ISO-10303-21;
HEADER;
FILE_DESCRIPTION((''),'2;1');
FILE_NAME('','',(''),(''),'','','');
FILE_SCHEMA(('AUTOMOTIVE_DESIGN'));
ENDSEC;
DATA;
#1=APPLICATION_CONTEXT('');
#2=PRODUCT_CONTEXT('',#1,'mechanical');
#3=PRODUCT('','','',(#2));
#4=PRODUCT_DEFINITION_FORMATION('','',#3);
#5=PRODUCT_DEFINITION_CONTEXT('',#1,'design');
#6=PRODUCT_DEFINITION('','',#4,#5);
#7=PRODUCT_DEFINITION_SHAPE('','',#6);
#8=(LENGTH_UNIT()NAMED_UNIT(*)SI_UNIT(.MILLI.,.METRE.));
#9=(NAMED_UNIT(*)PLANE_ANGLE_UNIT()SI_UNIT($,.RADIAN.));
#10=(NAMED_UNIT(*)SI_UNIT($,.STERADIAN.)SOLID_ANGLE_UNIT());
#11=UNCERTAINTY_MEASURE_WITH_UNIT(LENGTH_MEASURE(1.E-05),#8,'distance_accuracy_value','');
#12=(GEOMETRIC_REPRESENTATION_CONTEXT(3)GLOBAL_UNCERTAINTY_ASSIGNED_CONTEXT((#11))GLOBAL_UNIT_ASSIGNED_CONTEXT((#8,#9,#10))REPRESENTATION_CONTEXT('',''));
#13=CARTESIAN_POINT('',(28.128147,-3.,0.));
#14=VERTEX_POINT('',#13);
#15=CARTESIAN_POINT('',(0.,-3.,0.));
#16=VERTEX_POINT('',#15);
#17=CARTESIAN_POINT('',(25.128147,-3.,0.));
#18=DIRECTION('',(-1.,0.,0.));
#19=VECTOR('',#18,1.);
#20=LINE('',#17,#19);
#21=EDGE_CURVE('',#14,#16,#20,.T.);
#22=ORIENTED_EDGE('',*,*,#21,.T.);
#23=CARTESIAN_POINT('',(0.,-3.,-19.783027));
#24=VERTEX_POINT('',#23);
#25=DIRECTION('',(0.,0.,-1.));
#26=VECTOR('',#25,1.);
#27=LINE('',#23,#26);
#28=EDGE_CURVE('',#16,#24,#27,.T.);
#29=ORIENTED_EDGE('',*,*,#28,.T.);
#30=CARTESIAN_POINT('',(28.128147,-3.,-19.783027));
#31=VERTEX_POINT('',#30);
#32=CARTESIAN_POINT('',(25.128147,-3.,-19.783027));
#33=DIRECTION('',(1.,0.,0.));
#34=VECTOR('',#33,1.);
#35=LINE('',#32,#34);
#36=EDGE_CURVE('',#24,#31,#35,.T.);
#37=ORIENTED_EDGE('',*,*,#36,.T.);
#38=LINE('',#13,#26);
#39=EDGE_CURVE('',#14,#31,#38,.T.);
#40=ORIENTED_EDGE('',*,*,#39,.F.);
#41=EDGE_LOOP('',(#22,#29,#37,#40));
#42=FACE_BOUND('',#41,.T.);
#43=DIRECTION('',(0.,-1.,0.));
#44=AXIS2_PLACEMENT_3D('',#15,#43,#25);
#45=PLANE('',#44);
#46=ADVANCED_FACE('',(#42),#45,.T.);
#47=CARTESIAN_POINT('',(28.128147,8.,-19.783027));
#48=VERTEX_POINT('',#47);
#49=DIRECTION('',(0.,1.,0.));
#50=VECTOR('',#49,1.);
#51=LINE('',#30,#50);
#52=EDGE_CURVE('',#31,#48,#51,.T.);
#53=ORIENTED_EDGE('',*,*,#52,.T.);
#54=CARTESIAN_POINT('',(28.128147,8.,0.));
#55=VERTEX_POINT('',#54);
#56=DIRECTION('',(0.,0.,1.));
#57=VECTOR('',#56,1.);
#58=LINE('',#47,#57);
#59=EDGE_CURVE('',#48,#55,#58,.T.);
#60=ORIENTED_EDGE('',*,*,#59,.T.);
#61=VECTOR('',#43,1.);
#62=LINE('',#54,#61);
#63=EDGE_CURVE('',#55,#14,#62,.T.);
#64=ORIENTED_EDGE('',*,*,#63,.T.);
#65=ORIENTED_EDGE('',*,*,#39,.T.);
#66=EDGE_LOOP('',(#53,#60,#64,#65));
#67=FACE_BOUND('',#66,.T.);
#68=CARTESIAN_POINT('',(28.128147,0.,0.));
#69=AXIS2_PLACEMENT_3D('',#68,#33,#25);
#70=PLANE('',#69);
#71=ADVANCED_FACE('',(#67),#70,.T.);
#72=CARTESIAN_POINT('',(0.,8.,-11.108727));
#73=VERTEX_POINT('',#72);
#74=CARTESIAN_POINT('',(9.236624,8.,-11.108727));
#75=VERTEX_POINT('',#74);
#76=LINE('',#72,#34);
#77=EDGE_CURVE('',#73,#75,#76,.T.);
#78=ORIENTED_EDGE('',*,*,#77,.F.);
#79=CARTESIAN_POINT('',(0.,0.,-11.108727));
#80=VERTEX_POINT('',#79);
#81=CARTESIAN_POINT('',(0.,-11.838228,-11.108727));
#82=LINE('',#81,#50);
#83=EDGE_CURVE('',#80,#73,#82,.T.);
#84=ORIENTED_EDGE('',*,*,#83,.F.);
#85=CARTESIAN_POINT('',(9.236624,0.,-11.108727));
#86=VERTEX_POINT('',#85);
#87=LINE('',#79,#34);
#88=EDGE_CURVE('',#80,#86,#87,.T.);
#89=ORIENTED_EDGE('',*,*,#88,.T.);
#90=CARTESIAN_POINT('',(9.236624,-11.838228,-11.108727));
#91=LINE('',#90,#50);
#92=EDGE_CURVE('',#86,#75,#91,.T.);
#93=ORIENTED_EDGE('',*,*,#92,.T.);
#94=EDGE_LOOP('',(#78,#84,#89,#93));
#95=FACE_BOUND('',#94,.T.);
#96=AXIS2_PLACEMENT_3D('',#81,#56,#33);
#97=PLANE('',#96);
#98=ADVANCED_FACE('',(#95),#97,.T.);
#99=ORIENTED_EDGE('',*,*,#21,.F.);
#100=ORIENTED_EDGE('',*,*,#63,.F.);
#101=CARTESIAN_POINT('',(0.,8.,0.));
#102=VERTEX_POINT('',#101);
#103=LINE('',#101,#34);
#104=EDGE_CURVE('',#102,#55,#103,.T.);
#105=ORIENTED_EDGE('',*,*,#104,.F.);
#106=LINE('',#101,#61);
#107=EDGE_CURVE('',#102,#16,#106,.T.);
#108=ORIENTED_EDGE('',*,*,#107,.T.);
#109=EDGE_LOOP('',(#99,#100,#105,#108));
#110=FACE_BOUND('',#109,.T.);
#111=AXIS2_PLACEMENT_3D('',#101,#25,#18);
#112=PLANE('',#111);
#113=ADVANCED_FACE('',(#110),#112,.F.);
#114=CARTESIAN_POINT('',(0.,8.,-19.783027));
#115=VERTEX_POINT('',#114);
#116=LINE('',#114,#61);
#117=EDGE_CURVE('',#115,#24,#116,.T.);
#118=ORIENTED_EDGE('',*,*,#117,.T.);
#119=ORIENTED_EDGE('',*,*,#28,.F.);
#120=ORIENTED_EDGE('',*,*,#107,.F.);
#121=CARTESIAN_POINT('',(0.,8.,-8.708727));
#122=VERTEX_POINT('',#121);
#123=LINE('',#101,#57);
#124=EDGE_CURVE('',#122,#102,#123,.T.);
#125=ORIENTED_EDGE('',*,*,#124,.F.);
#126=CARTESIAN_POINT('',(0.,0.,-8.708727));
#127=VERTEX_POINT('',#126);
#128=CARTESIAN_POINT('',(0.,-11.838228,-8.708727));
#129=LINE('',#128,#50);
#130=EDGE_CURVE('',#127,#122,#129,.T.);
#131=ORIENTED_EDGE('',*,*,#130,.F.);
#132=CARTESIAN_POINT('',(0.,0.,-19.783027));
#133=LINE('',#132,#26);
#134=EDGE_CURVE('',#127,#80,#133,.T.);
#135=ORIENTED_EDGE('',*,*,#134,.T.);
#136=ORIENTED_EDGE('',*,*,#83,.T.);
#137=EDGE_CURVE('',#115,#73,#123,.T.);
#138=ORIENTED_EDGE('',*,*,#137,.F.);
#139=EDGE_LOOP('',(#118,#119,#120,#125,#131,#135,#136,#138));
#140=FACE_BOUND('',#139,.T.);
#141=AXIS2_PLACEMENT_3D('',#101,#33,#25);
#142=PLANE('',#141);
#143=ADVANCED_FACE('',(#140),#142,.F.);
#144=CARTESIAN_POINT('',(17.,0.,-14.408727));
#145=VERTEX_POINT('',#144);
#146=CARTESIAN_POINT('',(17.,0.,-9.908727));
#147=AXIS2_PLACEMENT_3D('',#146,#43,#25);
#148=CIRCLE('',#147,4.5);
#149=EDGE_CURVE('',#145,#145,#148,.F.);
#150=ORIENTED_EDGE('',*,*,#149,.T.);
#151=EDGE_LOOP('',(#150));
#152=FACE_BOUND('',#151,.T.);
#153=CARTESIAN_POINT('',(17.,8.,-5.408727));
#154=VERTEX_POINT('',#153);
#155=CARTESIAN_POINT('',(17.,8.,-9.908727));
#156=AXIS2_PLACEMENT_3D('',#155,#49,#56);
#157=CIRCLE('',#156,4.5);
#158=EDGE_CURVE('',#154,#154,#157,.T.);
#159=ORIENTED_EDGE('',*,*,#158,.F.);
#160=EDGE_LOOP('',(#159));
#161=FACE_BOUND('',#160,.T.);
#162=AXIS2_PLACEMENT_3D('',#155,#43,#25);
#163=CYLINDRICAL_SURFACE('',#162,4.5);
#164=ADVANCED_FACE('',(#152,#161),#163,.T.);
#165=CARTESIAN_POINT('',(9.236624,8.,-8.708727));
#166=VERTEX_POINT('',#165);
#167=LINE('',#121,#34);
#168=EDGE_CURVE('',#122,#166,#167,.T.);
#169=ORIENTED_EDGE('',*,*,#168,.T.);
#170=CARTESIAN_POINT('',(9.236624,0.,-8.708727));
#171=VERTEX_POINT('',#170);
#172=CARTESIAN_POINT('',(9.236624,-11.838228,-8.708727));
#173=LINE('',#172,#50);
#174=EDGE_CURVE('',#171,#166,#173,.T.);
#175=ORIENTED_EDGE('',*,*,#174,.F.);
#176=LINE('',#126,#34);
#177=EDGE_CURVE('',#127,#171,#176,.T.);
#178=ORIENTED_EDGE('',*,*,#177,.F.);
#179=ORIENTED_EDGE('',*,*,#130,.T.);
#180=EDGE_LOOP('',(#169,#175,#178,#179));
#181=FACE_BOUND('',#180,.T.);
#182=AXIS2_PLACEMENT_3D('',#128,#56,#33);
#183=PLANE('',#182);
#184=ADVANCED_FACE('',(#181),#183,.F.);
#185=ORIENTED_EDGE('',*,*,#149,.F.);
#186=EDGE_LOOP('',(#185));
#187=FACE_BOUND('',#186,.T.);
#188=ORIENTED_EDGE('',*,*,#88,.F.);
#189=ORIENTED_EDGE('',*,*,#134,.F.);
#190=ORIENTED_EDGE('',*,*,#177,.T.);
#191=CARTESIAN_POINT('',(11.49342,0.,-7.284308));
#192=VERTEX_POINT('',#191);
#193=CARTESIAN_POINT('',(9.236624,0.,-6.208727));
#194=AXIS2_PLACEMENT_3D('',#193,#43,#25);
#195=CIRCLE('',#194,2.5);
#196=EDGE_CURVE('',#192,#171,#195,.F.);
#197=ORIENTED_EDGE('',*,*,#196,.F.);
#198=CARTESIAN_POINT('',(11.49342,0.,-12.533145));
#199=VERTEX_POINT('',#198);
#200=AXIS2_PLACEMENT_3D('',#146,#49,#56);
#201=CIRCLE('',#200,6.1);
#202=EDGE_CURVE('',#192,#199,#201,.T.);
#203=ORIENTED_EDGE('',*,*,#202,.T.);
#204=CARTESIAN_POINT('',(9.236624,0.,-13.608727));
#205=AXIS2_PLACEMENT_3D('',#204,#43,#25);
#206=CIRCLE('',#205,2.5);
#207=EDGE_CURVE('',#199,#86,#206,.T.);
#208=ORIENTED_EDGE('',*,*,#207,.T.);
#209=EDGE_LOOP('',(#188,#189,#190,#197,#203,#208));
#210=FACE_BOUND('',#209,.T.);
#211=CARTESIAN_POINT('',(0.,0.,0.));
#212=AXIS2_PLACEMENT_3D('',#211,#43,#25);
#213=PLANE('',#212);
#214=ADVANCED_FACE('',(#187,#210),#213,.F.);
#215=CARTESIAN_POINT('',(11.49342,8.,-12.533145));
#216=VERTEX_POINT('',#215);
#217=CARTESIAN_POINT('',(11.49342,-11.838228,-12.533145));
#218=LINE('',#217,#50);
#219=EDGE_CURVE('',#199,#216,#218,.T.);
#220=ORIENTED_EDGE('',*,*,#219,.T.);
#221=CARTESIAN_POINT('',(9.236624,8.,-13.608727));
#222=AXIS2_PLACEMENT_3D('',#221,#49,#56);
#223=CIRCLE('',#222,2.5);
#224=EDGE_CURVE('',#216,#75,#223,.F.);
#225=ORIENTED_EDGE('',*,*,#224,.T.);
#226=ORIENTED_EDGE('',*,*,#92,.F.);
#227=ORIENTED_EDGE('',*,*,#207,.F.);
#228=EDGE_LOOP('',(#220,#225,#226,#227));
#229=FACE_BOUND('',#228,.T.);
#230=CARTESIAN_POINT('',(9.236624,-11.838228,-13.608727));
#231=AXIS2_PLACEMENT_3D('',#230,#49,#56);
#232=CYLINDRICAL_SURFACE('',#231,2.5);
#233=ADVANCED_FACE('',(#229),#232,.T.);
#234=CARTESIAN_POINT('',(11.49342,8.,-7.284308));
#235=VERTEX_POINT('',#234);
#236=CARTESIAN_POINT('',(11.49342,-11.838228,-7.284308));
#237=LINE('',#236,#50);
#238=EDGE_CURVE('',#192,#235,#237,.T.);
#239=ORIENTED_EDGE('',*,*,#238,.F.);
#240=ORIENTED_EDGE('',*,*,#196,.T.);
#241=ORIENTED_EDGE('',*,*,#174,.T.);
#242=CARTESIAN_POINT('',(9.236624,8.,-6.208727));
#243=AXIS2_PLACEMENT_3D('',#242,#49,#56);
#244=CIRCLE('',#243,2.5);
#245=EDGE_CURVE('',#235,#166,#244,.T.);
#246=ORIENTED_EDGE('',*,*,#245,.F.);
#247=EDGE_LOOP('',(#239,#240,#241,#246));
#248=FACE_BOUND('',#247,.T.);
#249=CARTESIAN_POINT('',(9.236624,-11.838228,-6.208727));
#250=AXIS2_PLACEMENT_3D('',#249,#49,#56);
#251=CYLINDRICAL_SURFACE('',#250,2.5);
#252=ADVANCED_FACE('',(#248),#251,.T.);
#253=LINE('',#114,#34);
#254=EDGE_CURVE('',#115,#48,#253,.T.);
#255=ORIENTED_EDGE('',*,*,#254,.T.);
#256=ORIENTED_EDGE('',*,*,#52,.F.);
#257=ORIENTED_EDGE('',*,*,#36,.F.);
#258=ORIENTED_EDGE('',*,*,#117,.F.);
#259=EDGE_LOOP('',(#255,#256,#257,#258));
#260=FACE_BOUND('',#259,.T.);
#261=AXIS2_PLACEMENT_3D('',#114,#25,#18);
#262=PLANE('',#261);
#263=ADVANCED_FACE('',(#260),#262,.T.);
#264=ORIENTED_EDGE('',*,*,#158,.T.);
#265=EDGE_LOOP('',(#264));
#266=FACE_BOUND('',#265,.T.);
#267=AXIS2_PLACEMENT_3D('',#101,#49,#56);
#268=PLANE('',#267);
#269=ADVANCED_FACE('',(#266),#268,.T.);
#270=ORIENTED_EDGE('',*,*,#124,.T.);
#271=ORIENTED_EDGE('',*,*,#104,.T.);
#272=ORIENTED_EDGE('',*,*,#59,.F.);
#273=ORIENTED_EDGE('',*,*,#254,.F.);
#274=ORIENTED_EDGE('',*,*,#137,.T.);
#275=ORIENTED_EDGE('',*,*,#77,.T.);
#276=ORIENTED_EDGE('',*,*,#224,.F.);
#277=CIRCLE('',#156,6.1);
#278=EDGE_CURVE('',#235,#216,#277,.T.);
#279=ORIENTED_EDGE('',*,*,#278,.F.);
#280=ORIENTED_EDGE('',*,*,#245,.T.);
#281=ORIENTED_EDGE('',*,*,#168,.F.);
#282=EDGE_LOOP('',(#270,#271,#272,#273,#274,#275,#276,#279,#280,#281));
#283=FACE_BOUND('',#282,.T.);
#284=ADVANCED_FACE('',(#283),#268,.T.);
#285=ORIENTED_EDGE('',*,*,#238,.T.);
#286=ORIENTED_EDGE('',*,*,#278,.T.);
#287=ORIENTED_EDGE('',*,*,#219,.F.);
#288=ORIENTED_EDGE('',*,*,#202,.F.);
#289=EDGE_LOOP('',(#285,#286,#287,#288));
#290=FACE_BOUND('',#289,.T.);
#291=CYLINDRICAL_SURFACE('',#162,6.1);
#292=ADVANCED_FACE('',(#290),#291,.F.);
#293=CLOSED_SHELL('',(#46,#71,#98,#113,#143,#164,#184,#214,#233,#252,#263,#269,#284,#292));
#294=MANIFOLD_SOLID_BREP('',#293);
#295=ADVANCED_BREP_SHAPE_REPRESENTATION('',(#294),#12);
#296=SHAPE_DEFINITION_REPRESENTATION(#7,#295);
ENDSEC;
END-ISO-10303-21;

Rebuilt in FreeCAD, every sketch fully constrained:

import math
import FreeCAD as App
import Part
import Sketcher

V = App.Vector

doc = App.newDocument("Part")
body = doc.addObject("PartDesign::Body", "Body")

# Sketch on XZ plane
sketch1 = doc.addObject("Sketcher::SketchObject", "Sketch")
body.addObject(sketch1)
sketch1.AttachmentSupport = (doc.XZ_Plane, [""])
sketch1.MapMode = "FlatFace"
sketch1.addGeometry(Part.LineSegment(V(0, -19.8, 0), V(0, -11.4, 0)), False)
sketch1.addGeometry(Part.LineSegment(V(0, -11.4, 0), V(9.1, -11.4, 0)), False)
sketch1.addGeometry(Part.ArcOfCircle(Part.Circle(V(9.1, -14.4, 0), V(0, 0, 1), 3), math.radians(30), math.radians(90)), False)
sketch1.addGeometry(Part.ArcOfCircle(Part.Circle(V(17, -9.9, 0), V(0, 0, 1), 6.1), math.radians(-150), math.radians(150)), False)
sketch1.addGeometry(Part.ArcOfCircle(Part.Circle(V(9.1, -5.4, 0), V(0, 0, 1), 3), math.radians(-90), math.radians(-30)), False)
sketch1.addGeometry(Part.LineSegment(V(9.1, -8.4, 0), V(0, -8.4, 0)), False)
sketch1.addGeometry(Part.LineSegment(V(0, -8.4, 0), V(0, 0, 0)), False)
sketch1.addGeometry(Part.LineSegment(V(0, 0, 0), V(25.1, 0, 0)), False)
sketch1.addGeometry(Part.LineSegment(V(25.1, 0, 0), V(25.1, -19.8, 0)), False)
sketch1.addGeometry(Part.LineSegment(V(25.1, -19.8, 0), V(0, -19.8, 0)), False)
sketch1.addConstraint(Sketcher.Constraint("Coincident", 0, 2, 1, 1))
sketch1.addConstraint(Sketcher.Constraint("Tangent", 1, 2, 2, 2))
sketch1.addConstraint(Sketcher.Constraint("Tangent", 2, 1, 3, 1))
sketch1.addConstraint(Sketcher.Constraint("Tangent", 3, 2, 4, 2))
sketch1.addConstraint(Sketcher.Constraint("Tangent", 4, 1, 5, 1))
sketch1.addConstraint(Sketcher.Constraint("Coincident", 5, 2, 6, 1))
sketch1.addConstraint(Sketcher.Constraint("Coincident", 6, 2, 7, 1))
sketch1.addConstraint(Sketcher.Constraint("Coincident", 7, 2, 8, 1))
sketch1.addConstraint(Sketcher.Constraint("Coincident", 8, 2, 9, 1))
sketch1.addConstraint(Sketcher.Constraint("Coincident", 9, 2, 0, 1))
sketch1.addConstraint(Sketcher.Constraint("Vertical", 0))
sketch1.addConstraint(Sketcher.Constraint("Horizontal", 1))
sketch1.addConstraint(Sketcher.Constraint("Horizontal", 5))
sketch1.addConstraint(Sketcher.Constraint("Vertical", 6))
sketch1.addConstraint(Sketcher.Constraint("Horizontal", 7))
sketch1.addConstraint(Sketcher.Constraint("Vertical", 8))
sketch1.addConstraint(Sketcher.Constraint("Horizontal", 9))
sketch1.addConstraint(Sketcher.Constraint("Coincident", 6, 2, -1, 1))
sketch1.addConstraint(Sketcher.Constraint("Equal", 2, 4))
sketch1.addConstraint(Sketcher.Constraint("PointOnObject", 0, 2, -2))
sketch1.addConstraint(Sketcher.Constraint("Vertical", 2, 3, 4, 3))
sketch1.addConstraint(Sketcher.Constraint("Radius", 2, 3.0))
sketch1.addConstraint(Sketcher.Constraint("Radius", 3, 6.1))
sketch1.addConstraint(Sketcher.Constraint("DistanceX", -1, 1, 3, 3, 17.0))
sketch1.addConstraint(Sketcher.Constraint("DistanceY", 2, 3, 4, 3, 9.0))
sketch1.addConstraint(Sketcher.Constraint("DistanceY", 0, 1, 0, 2, 8.374301))
sketch1.addConstraint(Sketcher.Constraint("DistanceX", 7, 1, 7, 2, 25.128147))
sketch1.addConstraint(Sketcher.Constraint("DistanceY", 6, 1, 6, 2, 8.408727))
pad1 = doc.addObject("PartDesign::Pad", "Pad")
body.addObject(pad1)
pad1.Profile = sketch1
pad1.Length = 8
pad1.Reversed = True
body2 = doc.addObject("PartDesign::Body", "Body001")

# Sketch on XZ plane
sketch2 = doc.addObject("Sketcher::SketchObject", "Sketch001")
body2.addObject(sketch2)
sketch2.AttachmentSupport = (doc.getObject("XZ_Plane001"), [""])
sketch2.MapMode = "FlatFace"
sketch2.addGeometry(Part.Circle(V(17, -9.9, 0), V(0, 0, 1), 4.5), False)
sketch2.addConstraint(Sketcher.Constraint("Diameter", 0, 9.0))
sketch2.addConstraint(Sketcher.Constraint("DistanceX", -1, 1, 0, 3, 17.0))
sketch2.addConstraint(Sketcher.Constraint("DistanceY", 0, 3, -1, 1, 9.908727))
pad2 = doc.addObject("PartDesign::Pad", "Pad001")
body2.addObject(pad2)
pad2.Profile = sketch2
pad2.Length = 8
pad2.Reversed = True
body.AllowCompound = True
doc.recompute()

boolean = doc.addObject("PartDesign::Boolean", "Boolean")
body.addObject(boolean)
boolean.Type = "Fuse"
boolean.addObjects([body2])

# Sketch on XZ plane
sketch3 = doc.addObject("Sketcher::SketchObject", "Sketch002")
body.addObject(sketch3)
sketch3.AttachmentSupport = (doc.XZ_Plane, [""])
sketch3.MapMode = "FlatFace"
sketch3.addGeometry(Part.LineSegment(V(0, 0, 0), V(0, -20, 0)), False)
sketch3.addGeometry(Part.LineSegment(V(0, -20, 0), V(25, -20, 0)), False)
sketch3.addGeometry(Part.LineSegment(V(25, -20, 0), V(25, 0, 0)), False)
sketch3.addGeometry(Part.LineSegment(V(25, 0, 0), V(0, 0, 0)), False)
sketch3.addConstraint(Sketcher.Constraint("Coincident", 0, 2, 1, 1))
sketch3.addConstraint(Sketcher.Constraint("Coincident", 1, 2, 2, 1))
sketch3.addConstraint(Sketcher.Constraint("Coincident", 2, 2, 3, 1))
sketch3.addConstraint(Sketcher.Constraint("Coincident", 3, 2, 0, 1))
sketch3.addConstraint(Sketcher.Constraint("Vertical", 0))
sketch3.addConstraint(Sketcher.Constraint("Horizontal", 1))
sketch3.addConstraint(Sketcher.Constraint("Vertical", 2))
sketch3.addConstraint(Sketcher.Constraint("Horizontal", 3))
sketch3.addConstraint(Sketcher.Constraint("Coincident", 3, 2, -1, 1))
sketch3.addConstraint(Sketcher.Constraint("DistanceX", 1, 1, 1, 2, 25.128147))
sketch3.addConstraint(Sketcher.Constraint("DistanceY", 0, 2, 0, 1, 19.783027))
pad3 = doc.addObject("PartDesign::Pad", "Pad002")
body.addObject(pad3)
pad3.Profile = sketch3
pad3.Length = 3

# Sketch on YZ plane
sketch4 = doc.addObject("Sketcher::SketchObject", "Sketch003")
body.addObject(sketch4)
sketch4.AttachmentSupport = (doc.YZ_Plane, [""])
sketch4.MapMode = "FlatFace"
sketch4.AttachmentOffset = App.Placement(V(0, 0, 25.128147), App.Rotation())
sketch4.addGeometry(Part.LineSegment(V(8, 0, 0), V(-3, 0, 0)), False)
sketch4.addGeometry(Part.LineSegment(V(-3, 0, 0), V(-3, -20, 0)), False)
sketch4.addGeometry(Part.LineSegment(V(-3, -20, 0), V(8, -20, 0)), False)
sketch4.addGeometry(Part.LineSegment(V(8, -20, 0), V(8, 0, 0)), False)
sketch4.addConstraint(Sketcher.Constraint("Coincident", 0, 2, 1, 1))
sketch4.addConstraint(Sketcher.Constraint("Coincident", 1, 2, 2, 1))
sketch4.addConstraint(Sketcher.Constraint("Coincident", 2, 2, 3, 1))
sketch4.addConstraint(Sketcher.Constraint("Coincident", 3, 2, 0, 1))
sketch4.addConstraint(Sketcher.Constraint("Horizontal", 0))
sketch4.addConstraint(Sketcher.Constraint("Vertical", 1))
sketch4.addConstraint(Sketcher.Constraint("Horizontal", 2))
sketch4.addConstraint(Sketcher.Constraint("Vertical", 3))
sketch4.addConstraint(Sketcher.Constraint("PointOnObject", 0, 2, -1))
sketch4.addConstraint(Sketcher.Constraint("DistanceX", 0, 2, 0, 1, 11.0))
sketch4.addConstraint(Sketcher.Constraint("DistanceX", 0, 2, -1, 1, 3.0))
sketch4.addConstraint(Sketcher.Constraint("DistanceY", 1, 2, 1, 1, 19.783027))
pad4 = doc.addObject("PartDesign::Pad", "Pad003")
body.addObject(pad4)
pad4.Profile = sketch4
pad4.Length = 3

# Sketch on XZ plane
sketch5 = doc.addObject("Sketcher::SketchObject", "Sketch004")
body.addObject(sketch5)
sketch5.AttachmentSupport = (doc.XZ_Plane, [""])
sketch5.MapMode = "FlatFace"
sketch5.addGeometry(Part.ArcOfCircle(Part.Circle(V(9.24, -13.61, 0), V(0, 0, 1), 2.5), math.radians(25), math.radians(90)), False)
sketch5.addGeometry(Part.ArcOfCircle(Part.Circle(V(17, -9.91, 0), V(0, 0, 1), 6.1), math.radians(-154.52), math.radians(-150.36)), False)
sketch5.addGeometry(Part.ArcOfCircle(Part.Circle(V(9.09, -14.41, 0), V(0, 0, 1), 3), math.radians(30), math.radians(90)), False)
sketch5.addGeometry(Part.LineSegment(V(9.09, -11.41, 0), V(0, -11.41, 0)), False)
sketch5.addGeometry(Part.LineSegment(V(0, -11.41, 0), V(0, -11.11, 0)), False)
sketch5.addGeometry(Part.LineSegment(V(0, -11.11, 0), V(9.24, -11.11, 0)), False)
sketch5.addGeometry(Part.ArcOfCircle(Part.Circle(V(17, -9.91, 0), V(0, 0, 1), 6.1), math.radians(150.36), math.radians(154.52)), False)
sketch5.addGeometry(Part.ArcOfCircle(Part.Circle(V(9.24, -6.21, 0), V(0, 0, 1), 2.5), math.radians(-90), math.radians(-25)), False)
sketch5.addGeometry(Part.LineSegment(V(9.24, -8.71, 0), V(0, -8.71, 0)), False)
sketch5.addGeometry(Part.LineSegment(V(0, -8.71, 0), V(0, -8.41, 0)), False)
sketch5.addGeometry(Part.LineSegment(V(0, -8.41, 0), V(9.09, -8.41, 0)), False)
sketch5.addGeometry(Part.ArcOfCircle(Part.Circle(V(9.09, -5.41, 0), V(0, 0, 1), 3), math.radians(-90), math.radians(-30)), False)
sketch5.addConstraint(Sketcher.Constraint("Tangent", 0, 1, 1, 1))
sketch5.addConstraint(Sketcher.Constraint("Tangent", 1, 2, 2, 1))
sketch5.addConstraint(Sketcher.Constraint("Tangent", 2, 2, 3, 1))
sketch5.addConstraint(Sketcher.Constraint("Coincident", 3, 2, 4, 1))
sketch5.addConstraint(Sketcher.Constraint("Coincident", 4, 2, 5, 1))
sketch5.addConstraint(Sketcher.Constraint("Tangent", 5, 2, 0, 2))
sketch5.addConstraint(Sketcher.Constraint("Tangent", 6, 2, 7, 2))
sketch5.addConstraint(Sketcher.Constraint("Tangent", 7, 1, 8, 1))
sketch5.addConstraint(Sketcher.Constraint("Coincident", 8, 2, 9, 1))
sketch5.addConstraint(Sketcher.Constraint("Coincident", 9, 2, 10, 1))
sketch5.addConstraint(Sketcher.Constraint("Tangent", 10, 2, 11, 1))
sketch5.addConstraint(Sketcher.Constraint("Tangent", 11, 2, 6, 1))
sketch5.addConstraint(Sketcher.Constraint("Horizontal", 3))
sketch5.addConstraint(Sketcher.Constraint("Vertical", 4))
sketch5.addConstraint(Sketcher.Constraint("Horizontal", 5))
sketch5.addConstraint(Sketcher.Constraint("Horizontal", 8))
sketch5.addConstraint(Sketcher.Constraint("Vertical", 9))
sketch5.addConstraint(Sketcher.Constraint("Horizontal", 10))
sketch5.addConstraint(Sketcher.Constraint("Coincident", 6, 3, 1, 3))
sketch5.addConstraint(Sketcher.Constraint("Equal", 1, 6))
sketch5.addConstraint(Sketcher.Constraint("Equal", 0, 7))
sketch5.addConstraint(Sketcher.Constraint("Equal", 2, 11))
sketch5.addConstraint(Sketcher.Constraint("PointOnObject", 3, 2, -2))
sketch5.addConstraint(Sketcher.Constraint("PointOnObject", 8, 2, -2))
sketch5.addConstraint(Sketcher.Constraint("Vertical", 0, 3, 7, 3))
sketch5.addConstraint(Sketcher.Constraint("Vertical", 2, 3, 11, 3))
sketch5.addConstraint(Sketcher.Constraint("Radius", 2, 3.0))
sketch5.addConstraint(Sketcher.Constraint("Radius", 0, 2.5))
sketch5.addConstraint(Sketcher.Constraint("Radius", 1, 6.1))
sketch5.addConstraint(Sketcher.Constraint("DistanceY", 4, 1, 4, 2, 0.3))
sketch5.addConstraint(Sketcher.Constraint("DistanceX", -1, 1, 1, 3, 17.0))
sketch5.addConstraint(Sketcher.Constraint("DistanceY", 2, 3, 11, 3, 9.0))
sketch5.addConstraint(Sketcher.Constraint("DistanceY", 1, 2, -1, 1, 12.92521))
pad5 = doc.addObject("PartDesign::Pad", "Pad004")
body.addObject(pad5)
pad5.Profile = sketch5
pad5.Length = 8
pad5.Reversed = True

doc.recompute()
